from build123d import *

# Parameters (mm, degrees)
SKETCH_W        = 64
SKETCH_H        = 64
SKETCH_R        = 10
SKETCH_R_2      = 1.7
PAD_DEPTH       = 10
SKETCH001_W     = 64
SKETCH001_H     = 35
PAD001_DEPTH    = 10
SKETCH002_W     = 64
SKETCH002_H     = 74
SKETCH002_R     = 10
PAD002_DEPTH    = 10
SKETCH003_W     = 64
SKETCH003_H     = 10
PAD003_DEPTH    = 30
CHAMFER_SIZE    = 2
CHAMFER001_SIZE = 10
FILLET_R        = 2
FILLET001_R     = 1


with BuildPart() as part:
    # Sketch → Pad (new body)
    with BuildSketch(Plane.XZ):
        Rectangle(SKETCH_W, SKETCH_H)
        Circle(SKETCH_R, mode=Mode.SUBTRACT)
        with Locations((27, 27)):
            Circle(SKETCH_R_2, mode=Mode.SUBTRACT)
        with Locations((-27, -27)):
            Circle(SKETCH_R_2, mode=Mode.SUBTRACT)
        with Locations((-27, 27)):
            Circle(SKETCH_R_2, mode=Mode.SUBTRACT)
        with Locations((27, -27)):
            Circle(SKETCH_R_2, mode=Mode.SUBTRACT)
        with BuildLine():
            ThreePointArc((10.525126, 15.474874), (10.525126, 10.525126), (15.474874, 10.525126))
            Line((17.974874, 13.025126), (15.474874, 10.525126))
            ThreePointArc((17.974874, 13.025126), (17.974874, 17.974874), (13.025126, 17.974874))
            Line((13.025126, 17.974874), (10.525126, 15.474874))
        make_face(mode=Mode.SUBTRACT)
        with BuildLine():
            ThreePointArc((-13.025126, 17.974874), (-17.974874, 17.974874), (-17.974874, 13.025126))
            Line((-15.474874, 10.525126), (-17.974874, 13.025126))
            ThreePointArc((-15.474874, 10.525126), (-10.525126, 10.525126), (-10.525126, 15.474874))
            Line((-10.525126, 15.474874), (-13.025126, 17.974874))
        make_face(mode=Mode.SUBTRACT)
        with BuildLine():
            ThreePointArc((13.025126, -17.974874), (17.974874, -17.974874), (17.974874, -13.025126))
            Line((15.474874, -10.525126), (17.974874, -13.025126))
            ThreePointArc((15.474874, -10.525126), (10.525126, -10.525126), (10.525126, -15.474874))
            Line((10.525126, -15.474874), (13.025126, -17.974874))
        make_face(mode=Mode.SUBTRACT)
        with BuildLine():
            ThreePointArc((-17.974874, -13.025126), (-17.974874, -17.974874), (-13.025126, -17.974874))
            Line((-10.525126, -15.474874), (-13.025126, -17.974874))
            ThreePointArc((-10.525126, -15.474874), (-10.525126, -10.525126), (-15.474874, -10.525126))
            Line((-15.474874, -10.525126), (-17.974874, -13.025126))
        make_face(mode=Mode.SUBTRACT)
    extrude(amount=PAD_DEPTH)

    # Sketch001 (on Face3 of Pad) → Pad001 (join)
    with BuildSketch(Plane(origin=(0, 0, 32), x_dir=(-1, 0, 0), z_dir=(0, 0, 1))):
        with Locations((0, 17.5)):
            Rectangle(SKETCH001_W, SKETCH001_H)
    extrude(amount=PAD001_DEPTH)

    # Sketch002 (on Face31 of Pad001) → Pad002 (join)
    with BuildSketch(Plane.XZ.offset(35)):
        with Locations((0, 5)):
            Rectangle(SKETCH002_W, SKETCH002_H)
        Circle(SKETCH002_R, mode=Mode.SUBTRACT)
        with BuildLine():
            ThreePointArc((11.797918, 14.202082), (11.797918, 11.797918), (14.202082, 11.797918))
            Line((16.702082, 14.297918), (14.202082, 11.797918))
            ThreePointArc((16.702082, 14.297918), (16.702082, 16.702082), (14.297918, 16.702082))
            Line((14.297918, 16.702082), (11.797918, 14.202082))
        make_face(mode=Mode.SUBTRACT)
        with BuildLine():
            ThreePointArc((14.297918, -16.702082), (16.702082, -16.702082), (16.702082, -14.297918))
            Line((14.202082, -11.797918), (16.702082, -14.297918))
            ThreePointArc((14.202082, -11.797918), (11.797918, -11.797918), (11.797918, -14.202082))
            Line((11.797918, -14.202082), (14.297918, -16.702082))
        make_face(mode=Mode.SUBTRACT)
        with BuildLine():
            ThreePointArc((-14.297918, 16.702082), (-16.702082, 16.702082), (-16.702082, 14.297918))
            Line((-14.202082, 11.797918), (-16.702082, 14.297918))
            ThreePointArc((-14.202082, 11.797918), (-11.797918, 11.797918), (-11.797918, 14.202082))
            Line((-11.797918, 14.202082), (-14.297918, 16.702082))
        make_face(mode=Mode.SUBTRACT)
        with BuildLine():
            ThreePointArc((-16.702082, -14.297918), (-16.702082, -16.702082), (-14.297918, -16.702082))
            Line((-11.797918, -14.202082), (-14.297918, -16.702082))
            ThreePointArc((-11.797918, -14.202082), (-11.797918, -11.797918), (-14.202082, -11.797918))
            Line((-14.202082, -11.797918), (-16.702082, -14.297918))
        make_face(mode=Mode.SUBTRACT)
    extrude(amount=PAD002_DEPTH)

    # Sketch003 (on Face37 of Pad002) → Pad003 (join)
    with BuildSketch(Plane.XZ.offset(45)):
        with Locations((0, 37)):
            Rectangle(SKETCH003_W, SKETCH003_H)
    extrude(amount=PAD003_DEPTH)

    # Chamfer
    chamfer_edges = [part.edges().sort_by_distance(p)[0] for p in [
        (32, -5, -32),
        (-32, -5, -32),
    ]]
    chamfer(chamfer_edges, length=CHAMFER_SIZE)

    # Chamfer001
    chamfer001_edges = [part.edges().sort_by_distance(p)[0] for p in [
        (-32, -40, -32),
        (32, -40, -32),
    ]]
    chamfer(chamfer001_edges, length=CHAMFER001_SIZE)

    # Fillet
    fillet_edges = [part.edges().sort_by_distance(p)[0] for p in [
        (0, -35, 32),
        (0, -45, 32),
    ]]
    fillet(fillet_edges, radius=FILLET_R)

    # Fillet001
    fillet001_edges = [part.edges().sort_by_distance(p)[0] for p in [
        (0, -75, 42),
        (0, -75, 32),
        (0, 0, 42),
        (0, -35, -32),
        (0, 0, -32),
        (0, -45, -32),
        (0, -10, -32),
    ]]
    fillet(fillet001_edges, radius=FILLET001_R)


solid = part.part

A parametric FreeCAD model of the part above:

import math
import FreeCAD as App
import Part
import Sketcher

V = App.Vector
Q = App.Units.Quantity


def edges_at(feature, points):
    """Names of the edges that pass closest to the given points."""
    edges = feature.Shape.Edges
    near = lambda p: min(range(len(edges)), key=lambda i: edges[i].distToShape(Part.Vertex(*p))[0])
    return sorted({f"Edge{near(p) + 1}" for p in points})


def add_polygon(sketch, points):
    """Adds a closed chain of lines whose ends are joined by coincident constraints."""
    first, n = sketch.GeometryCount, len(points)
    for a, b in zip(points, points[1:] + points[:1]):
        sketch.addGeometry(Part.LineSegment(App.Vector(*a, 0), App.Vector(*b, 0)), False)
    for i in range(n):
        sketch.addConstraint(Sketcher.Constraint("Coincident", first + i, 2, first + (i + 1) % n, 1))

doc = App.newDocument("Part")
body = doc.addObject("PartDesign::Body", "Body")

sketch1 = doc.addObject("Sketcher::SketchObject", "Sketch")
body.addObject(sketch1)
sketch1.AttachmentSupport = (doc.XZ_Plane, [""])
sketch1.MapMode = "FlatFace"
add_polygon(sketch1, [(-32, 32), (-32, -32), (32, -32), (32, 32)])
sketch1.addGeometry(Part.Circle(V(-27, -27, 0), V(0, 0, 1), 1.7), False)
sketch1.addGeometry(Part.ArcOfCircle(Part.Circle(V(-15.5, -15.5, 0), V(0, 0, 1), 3.5), math.radians(135), math.radians(315)), False)
sketch1.addGeometry(Part.LineSegment(V(-17.974874, -13.025126, 0), V(-15.474874, -10.525126, 0)), False)
sketch1.addGeometry(Part.ArcOfCircle(Part.Circle(V(-13, -13, 0), V(0, 0, 1), 3.5), math.radians(-45), math.radians(135)), False)
sketch1.addGeometry(Part.LineSegment(V(-10.525126, -15.474874, 0), V(-13.025126, -17.974874, 0)), False)
sketch1.addGeometry(Part.Circle(V(0, 0, 0), V(0, 0, 1), 10), False)
sketch1.addGeometry(Part.Circle(V(27, -27, 0), V(0, 0, 1), 1.7), False)
sketch1.addGeometry(Part.ArcOfCircle(Part.Circle(V(15.5, -15.5, 0), V(0, 0, 1), 3.5), math.radians(-135), math.radians(45)), False)
sketch1.addGeometry(Part.LineSegment(V(13.025126, -17.974874, 0), V(10.525126, -15.474874, 0)), False)
sketch1.addGeometry(Part.ArcOfCircle(Part.Circle(V(13, -13, 0), V(0, 0, 1), 3.5), math.radians(45), math.radians(225)), False)
sketch1.addGeometry(Part.LineSegment(V(15.474874, -10.525126, 0), V(17.974874, -13.025126, 0)), False)
sketch1.addGeometry(Part.ArcOfCircle(Part.Circle(V(-15.5, 15.5, 0), V(0, 0, 1), 3.5), math.radians(45), math.radians(225)), False)
sketch1.addGeometry(Part.LineSegment(V(-13.025126, 17.974874, 0), V(-10.525126, 15.474874, 0)), False)
sketch1.addGeometry(Part.ArcOfCircle(Part.Circle(V(-13, 13, 0), V(0, 0, 1), 3.5), math.radians(-135), math.radians(45)), False)
sketch1.addGeometry(Part.LineSegment(V(-15.474874, 10.525126, 0), V(-17.974874, 13.025126, 0)), False)
sketch1.addGeometry(Part.Circle(V(-27, 27, 0), V(0, 0, 1), 1.7), False)
sketch1.addGeometry(Part.ArcOfCircle(Part.Circle(V(13, 13, 0), V(0, 0, 1), 3.5), math.radians(135), math.radians(315)), False)
sketch1.addGeometry(Part.LineSegment(V(10.525126, 15.474874, 0), V(13.025126, 17.974874, 0)), False)
sketch1.addGeometry(Part.ArcOfCircle(Part.Circle(V(15.5, 15.5, 0), V(0, 0, 1), 3.5), math.radians(-45), math.radians(135)), False)
sketch1.addGeometry(Part.LineSegment(V(17.974874, 13.025126, 0), V(15.474874, 10.525126, 0)), False)
sketch1.addGeometry(Part.Circle(V(27, 27, 0), V(0, 0, 1), 1.7), False)
sketch1.addConstraint([
    Sketcher.Constraint("Tangent", 5, 1, 6, 1),
    Sketcher.Constraint("Tangent", 6, 2, 7, 2),
    Sketcher.Constraint("Tangent", 7, 1, 8, 1),
    Sketcher.Constraint("Tangent", 8, 2, 5, 2),
    Sketcher.Constraint("Tangent", 11, 1, 12, 1),
    Sketcher.Constraint("Tangent", 12, 2, 13, 2),
    Sketcher.Constraint("Tangent", 13, 1, 14, 1),
    Sketcher.Constraint("Tangent", 14, 2, 11, 2),
    Sketcher.Constraint("Tangent", 15, 1, 16, 1),
    Sketcher.Constraint("Tangent", 16, 2, 17, 2),
    Sketcher.Constraint("Tangent", 17, 1, 18, 1),
    Sketcher.Constraint("Tangent", 18, 2, 15, 2),
    Sketcher.Constraint("Tangent", 20, 1, 21, 1),
    Sketcher.Constraint("Tangent", 21, 2, 22, 2),
    Sketcher.Constraint("Tangent", 22, 1, 23, 1),
    Sketcher.Constraint("Tangent", 23, 2, 20, 2),
    Sketcher.Constraint("Vertical", 0),
    Sketcher.Constraint("Horizontal", 1),
    Sketcher.Constraint("Vertical", 2),
    Sketcher.Constraint("Horizontal", 3),
    Sketcher.Constraint("Coincident", 9, 3, -1, 1),
    Sketcher.Constraint("Equal", 5, 7),
    Sketcher.Constraint("Equal", 4, 10),
    Sketcher.Constraint("Equal", 7, 11),
    Sketcher.Constraint("Equal", 11, 13),
    Sketcher.Constraint("Equal", 13, 15),
    Sketcher.Constraint("Equal", 15, 17),
    Sketcher.Constraint("Equal", 10, 19),
    Sketcher.Constraint("Equal", 17, 20),
    Sketcher.Constraint("Equal", 20, 22),
    Sketcher.Constraint("Equal", 19, 24),
    Sketcher.Constraint("Symmetric", 11, 3, 15, 3, -1, 1),
    Sketcher.Constraint("Symmetric", 13, 3, 17, 3, -1, 1),
    Sketcher.Constraint("Symmetric", 10, 3, 19, 3, -1, 1),
    Sketcher.Constraint("Symmetric", 7, 3, 20, 3, -1, 1),
    Sketcher.Constraint("Symmetric", 5, 3, 22, 3, -1, 1),
    Sketcher.Constraint("Symmetric", 4, 3, 24, 3, -1, 1),
    Sketcher.Constraint("Symmetric", 0, 2, 2, 2, -1, 1),
    Sketcher.Constraint("Symmetric", 4, 3, 10, 3, -2),
    Sketcher.Constraint("Symmetric", 5, 3, 11, 3, -2),
    Sketcher.Constraint("Symmetric", 7, 3, 13, 3, -2),
    Sketcher.Constraint("Perpendicular", 8, 12),
    Sketcher.Constraint("Equal", 3, 0),
    Sketcher.Constraint("Diameter", 9, Q("20 mm")),
    Sketcher.Constraint("Diameter", 4, Q("3.4 mm")),
    Sketcher.Constraint("Radius", 5, Q("3.5 mm")),
    Sketcher.Constraint("DistanceX", 1, 1, 1, 2, Q("64 mm")),
    Sketcher.Constraint("DistanceX", 4, 3, -1, 1, Q("27 mm")),
    Sketcher.Constraint("DistanceY", 4, 3, -1, 1, Q("27 mm")),
    Sketcher.Constraint("DistanceX", 7, 3, -1, 1, Q("13 mm")),
    Sketcher.Constraint("DistanceY", 7, 3, -1, 1, Q("13 mm")),
    Sketcher.Constraint("DistanceX", 5, 3, 11, 3, Q("31 mm")),
])
pad1 = doc.addObject("PartDesign::Pad", "Pad")
body.addObject(pad1)
pad1.Profile = sketch1
pad1.Length = 10

sketch2 = doc.addObject("Sketcher::SketchObject", "Sketch001")
body.addObject(sketch2)
sketch2.AttachmentSupport = (doc.XY_Plane, [""])
sketch2.MapMode = "FlatFace"
sketch2.AttachmentOffset = App.Placement(V(0, 0, 32), App.Rotation())
add_polygon(sketch2, [(32, -35), (32, 0), (-32, 0), (-32, -35)])
sketch2.addConstraint([
    Sketcher.Constraint("Vertical", 0),
    Sketcher.Constraint("Horizontal", 1),
    Sketcher.Constraint("Vertical", 2),
    Sketcher.Constraint("Horizontal", 3),
    Sketcher.Constraint("Symmetric", 0, 2, 1, 2, -1, 1),
    Sketcher.Constraint("DistanceX", 1, 2, 1, 1, Q("64 mm")),
    Sketcher.Constraint("DistanceY", 0, 1, 0, 2, Q("35 mm")),
])
pad2 = doc.addObject("PartDesign::Pad", "Pad001")
body.addObject(pad2)
pad2.Profile = sketch2
pad2.Length = 10

sketch3 = doc.addObject("Sketcher::SketchObject", "Sketch002")
body.addObject(sketch3)
sketch3.AttachmentSupport = (doc.XZ_Plane, [""])
sketch3.MapMode = "FlatFace"
sketch3.AttachmentOffset = App.Placement(V(0, 0, 35), App.Rotation())
add_polygon(sketch3, [(-32, 42), (-32, -32), (32, -32), (32, 42)])
sketch3.addGeometry(Part.ArcOfCircle(Part.Circle(V(-15.5, -15.5, 0), V(0, 0, 1), 1.700001), math.radians(135), math.radians(315)), False)
sketch3.addGeometry(Part.LineSegment(V(-16.702082, -14.297918, 0), V(-14.202082, -11.797918, 0)), False)
sketch3.addGeometry(Part.ArcOfCircle(Part.Circle(V(-13, -13, 0), V(0, 0, 1), 1.700001), math.radians(-45), math.radians(135)), False)
sketch3.addGeometry(Part.LineSegment(V(-11.797918, -14.202082, 0), V(-14.297918, -16.702082, 0)), False)
sketch3.addGeometry(Part.ArcOfCircle(Part.Circle(V(15.5, -15.5, 0), V(0, 0, 1), 1.700001), math.radians(-135), math.radians(45)), False)
sketch3.addGeometry(Part.LineSegment(V(14.297918, -16.702082, 0), V(11.797918, -14.202082, 0)), False)
sketch3.addGeometry(Part.ArcOfCircle(Part.Circle(V(13, -13, 0), V(0, 0, 1), 1.700001), math.radians(45), math.radians(225)), False)
sketch3.addGeometry(Part.LineSegment(V(14.202082, -11.797918, 0), V(16.702082, -14.297918, 0)), False)
sketch3.addGeometry(Part.ArcOfCircle(Part.Circle(V(-15.5, 15.5, 0), V(0, 0, 1), 1.700001), math.radians(45), math.radians(225)), False)
sketch3.addGeometry(Part.LineSegment(V(-14.297918, 16.702082, 0), V(-11.797918, 14.202082, 0)), False)
sketch3.addGeometry(Part.ArcOfCircle(Part.Circle(V(-13, 13, 0), V(0, 0, 1), 1.700001), math.radians(-135), math.radians(45)), False)
sketch3.addGeometry(Part.LineSegment(V(-14.202082, 11.797918, 0), V(-16.702082, 14.297918, 0)), False)
sketch3.addGeometry(Part.Circle(V(0, 0, 0), V(0, 0, 1), 10), False)
sketch3.addGeometry(Part.ArcOfCircle(Part.Circle(V(13, 13, 0), V(0, 0, 1), 1.700001), math.radians(135), math.radians(315)), False)
sketch3.addGeometry(Part.LineSegment(V(11.797918, 14.202082, 0), V(14.297918, 16.702082, 0)), False)
sketch3.addGeometry(Part.ArcOfCircle(Part.Circle(V(15.5, 15.5, 0), V(0, 0, 1), 1.700001), math.radians(-45), math.radians(135)), False)
sketch3.addGeometry(Part.LineSegment(V(16.702082, 14.297918, 0), V(14.202082, 11.797918, 0)), False)
sketch3.addConstraint([
    Sketcher.Constraint("Tangent", 4, 1, 5, 1),
    Sketcher.Constraint("Tangent", 5, 2, 6, 2),
    Sketcher.Constraint("Tangent", 6, 1, 7, 1),
    Sketcher.Constraint("Tangent", 7, 2, 4, 2),
    Sketcher.Constraint("Tangent", 8, 1, 9, 1),
    Sketcher.Constraint("Tangent", 9, 2, 10, 2),
    Sketcher.Constraint("Tangent", 10, 1, 11, 1),
    Sketcher.Constraint("Tangent", 11, 2, 8, 2),
    Sketcher.Constraint("Tangent", 12, 1, 13, 1),
    Sketcher.Constraint("Tangent", 13, 2, 14, 2),
    Sketcher.Constraint("Tangent", 14, 1, 15, 1),
    Sketcher.Constraint("Tangent", 15, 2, 12, 2),
    Sketcher.Constraint("Tangent", 17, 1, 18, 1),
    Sketcher.Constraint("Tangent", 18, 2, 19, 2),
    Sketcher.Constraint("Tangent", 19, 1, 20, 1),
    Sketcher.Constraint("Tangent", 20, 2, 17, 2),
    Sketcher.Constraint("Vertical", 0),
    Sketcher.Constraint("Horizontal", 1),
    Sketcher.Constraint("Vertical", 2),
    Sketcher.Constraint("Horizontal", 3),
    Sketcher.Constraint("Coincident", 16, 3, -1, 1),
    Sketcher.Constraint("Equal", 4, 6),
    Sketcher.Constraint("Equal", 6, 8),
    Sketcher.Constraint("Equal", 8, 10),
    Sketcher.Constraint("Equal", 10, 12),
    Sketcher.Constraint("Equal", 12, 14),
    Sketcher.Constraint("Equal", 14, 17),
    Sketcher.Constraint("Equal", 17, 19),
    Sketcher.Constraint("Symmetric", 8, 3, 12, 3, -1, 1),
    Sketcher.Constraint("Symmetric", 10, 3, 14, 3, -1, 1),
    Sketcher.Constraint("Symmetric", 6, 3, 17, 3, -1, 1),
    Sketcher.Constraint("Symmetric", 4, 3, 19, 3, -1, 1),
    Sketcher.Constraint("Symmetric", 4, 3, 8, 3, -2),
    Sketcher.Constraint("Symmetric", 6, 3, 10, 3, -2),
    Sketcher.Constraint("Perpendicular", 7, 9),
    Sketcher.Constraint("Diameter", 16, Q("20 mm")),
    Sketcher.Constraint("Radius", 4, Q("1.700001 mm")),
    Sketcher.Constraint("DistanceX", 1, 1, 1, 2, Q("64 mm")),
    Sketcher.Constraint("DistanceY", 0, 2, 0, 1, Q("74 mm")),
    Sketcher.Constraint("DistanceX", 6, 3, -1, 1, Q("13 mm")),
    Sketcher.Constraint("DistanceY", 6, 3, -1, 1, Q("13 mm")),
    Sketcher.Constraint("DistanceX", 0, 2, -1, 1, Q("32 mm")),
    Sketcher.Constraint("DistanceY", 0, 2, -1, 1, Q("32 mm")),
    Sketcher.Constraint("DistanceX", 4, 3, 8, 3, Q("31 mm")),
])
pad3 = doc.addObject("PartDesign::Pad", "Pad002")
body.addObject(pad3)
pad3.Profile = sketch3
pad3.Length = 10

sketch4 = doc.addObject("Sketcher::SketchObject", "Sketch003")
body.addObject(sketch4)
sketch4.AttachmentSupport = (doc.XZ_Plane, [""])
sketch4.MapMode = "FlatFace"
sketch4.AttachmentOffset = App.Placement(V(0, 0, 45), App.Rotation())
add_polygon(sketch4, [(-32, 42), (-32, 32), (32, 32), (32, 42)])
sketch4.addConstraint([
    Sketcher.Constraint("Vertical", 0),
    Sketcher.Constraint("Horizontal", 1),
    Sketcher.Constraint("Vertical", 2),
    Sketcher.Constraint("Horizontal", 3),
    Sketcher.Constraint("DistanceX", 1, 1, 1, 2, Q("64 mm")),
    Sketcher.Constraint("DistanceY", 0, 2, 0, 1, Q("10 mm")),
    Sketcher.Constraint("DistanceX", 0, 2, -1, 1, Q("32 mm")),
    Sketcher.Constraint("DistanceY", -1, 1, 0, 2, Q("32 mm")),
])
pad4 = doc.addObject("PartDesign::Pad", "Pad003")
body.addObject(pad4)
pad4.Profile = sketch4
pad4.Length = 30
doc.recompute()

chamfer = doc.addObject("PartDesign::Chamfer", "Chamfer")
body.addObject(chamfer)
chamfer.Base = (pad4, edges_at(pad4, [(32, -5, -32), (-32, -5, -32)]))
chamfer.Size = 2
doc.recompute()

chamfer2 = doc.addObject("PartDesign::Chamfer", "Chamfer001")
body.addObject(chamfer2)
chamfer2.Base = (chamfer, edges_at(chamfer, [(-32, -40, -32), (32, -40, -32)]))
chamfer2.Size = 10
doc.recompute()

fillet = doc.addObject("PartDesign::Fillet", "Fillet")
body.addObject(fillet)
fillet.Base = (chamfer2, edges_at(chamfer2, [(0, -35, 32), (0, -45, 32)]))
fillet.Radius = 2
doc.recompute()

fillet2 = doc.addObject("PartDesign::Fillet", "Fillet001")
body.addObject(fillet2)
fillet2.Base = (fillet, edges_at(fillet, [
    (0, -75, 42),
    (0, -75, 32),
    (0, 0, 42),
    (0, -35, -32),
    (0, 0, -32),
    (0, -45, -32),
    (0, -10, -32),
]))
fillet2.Radius = 1

doc.recompute()
